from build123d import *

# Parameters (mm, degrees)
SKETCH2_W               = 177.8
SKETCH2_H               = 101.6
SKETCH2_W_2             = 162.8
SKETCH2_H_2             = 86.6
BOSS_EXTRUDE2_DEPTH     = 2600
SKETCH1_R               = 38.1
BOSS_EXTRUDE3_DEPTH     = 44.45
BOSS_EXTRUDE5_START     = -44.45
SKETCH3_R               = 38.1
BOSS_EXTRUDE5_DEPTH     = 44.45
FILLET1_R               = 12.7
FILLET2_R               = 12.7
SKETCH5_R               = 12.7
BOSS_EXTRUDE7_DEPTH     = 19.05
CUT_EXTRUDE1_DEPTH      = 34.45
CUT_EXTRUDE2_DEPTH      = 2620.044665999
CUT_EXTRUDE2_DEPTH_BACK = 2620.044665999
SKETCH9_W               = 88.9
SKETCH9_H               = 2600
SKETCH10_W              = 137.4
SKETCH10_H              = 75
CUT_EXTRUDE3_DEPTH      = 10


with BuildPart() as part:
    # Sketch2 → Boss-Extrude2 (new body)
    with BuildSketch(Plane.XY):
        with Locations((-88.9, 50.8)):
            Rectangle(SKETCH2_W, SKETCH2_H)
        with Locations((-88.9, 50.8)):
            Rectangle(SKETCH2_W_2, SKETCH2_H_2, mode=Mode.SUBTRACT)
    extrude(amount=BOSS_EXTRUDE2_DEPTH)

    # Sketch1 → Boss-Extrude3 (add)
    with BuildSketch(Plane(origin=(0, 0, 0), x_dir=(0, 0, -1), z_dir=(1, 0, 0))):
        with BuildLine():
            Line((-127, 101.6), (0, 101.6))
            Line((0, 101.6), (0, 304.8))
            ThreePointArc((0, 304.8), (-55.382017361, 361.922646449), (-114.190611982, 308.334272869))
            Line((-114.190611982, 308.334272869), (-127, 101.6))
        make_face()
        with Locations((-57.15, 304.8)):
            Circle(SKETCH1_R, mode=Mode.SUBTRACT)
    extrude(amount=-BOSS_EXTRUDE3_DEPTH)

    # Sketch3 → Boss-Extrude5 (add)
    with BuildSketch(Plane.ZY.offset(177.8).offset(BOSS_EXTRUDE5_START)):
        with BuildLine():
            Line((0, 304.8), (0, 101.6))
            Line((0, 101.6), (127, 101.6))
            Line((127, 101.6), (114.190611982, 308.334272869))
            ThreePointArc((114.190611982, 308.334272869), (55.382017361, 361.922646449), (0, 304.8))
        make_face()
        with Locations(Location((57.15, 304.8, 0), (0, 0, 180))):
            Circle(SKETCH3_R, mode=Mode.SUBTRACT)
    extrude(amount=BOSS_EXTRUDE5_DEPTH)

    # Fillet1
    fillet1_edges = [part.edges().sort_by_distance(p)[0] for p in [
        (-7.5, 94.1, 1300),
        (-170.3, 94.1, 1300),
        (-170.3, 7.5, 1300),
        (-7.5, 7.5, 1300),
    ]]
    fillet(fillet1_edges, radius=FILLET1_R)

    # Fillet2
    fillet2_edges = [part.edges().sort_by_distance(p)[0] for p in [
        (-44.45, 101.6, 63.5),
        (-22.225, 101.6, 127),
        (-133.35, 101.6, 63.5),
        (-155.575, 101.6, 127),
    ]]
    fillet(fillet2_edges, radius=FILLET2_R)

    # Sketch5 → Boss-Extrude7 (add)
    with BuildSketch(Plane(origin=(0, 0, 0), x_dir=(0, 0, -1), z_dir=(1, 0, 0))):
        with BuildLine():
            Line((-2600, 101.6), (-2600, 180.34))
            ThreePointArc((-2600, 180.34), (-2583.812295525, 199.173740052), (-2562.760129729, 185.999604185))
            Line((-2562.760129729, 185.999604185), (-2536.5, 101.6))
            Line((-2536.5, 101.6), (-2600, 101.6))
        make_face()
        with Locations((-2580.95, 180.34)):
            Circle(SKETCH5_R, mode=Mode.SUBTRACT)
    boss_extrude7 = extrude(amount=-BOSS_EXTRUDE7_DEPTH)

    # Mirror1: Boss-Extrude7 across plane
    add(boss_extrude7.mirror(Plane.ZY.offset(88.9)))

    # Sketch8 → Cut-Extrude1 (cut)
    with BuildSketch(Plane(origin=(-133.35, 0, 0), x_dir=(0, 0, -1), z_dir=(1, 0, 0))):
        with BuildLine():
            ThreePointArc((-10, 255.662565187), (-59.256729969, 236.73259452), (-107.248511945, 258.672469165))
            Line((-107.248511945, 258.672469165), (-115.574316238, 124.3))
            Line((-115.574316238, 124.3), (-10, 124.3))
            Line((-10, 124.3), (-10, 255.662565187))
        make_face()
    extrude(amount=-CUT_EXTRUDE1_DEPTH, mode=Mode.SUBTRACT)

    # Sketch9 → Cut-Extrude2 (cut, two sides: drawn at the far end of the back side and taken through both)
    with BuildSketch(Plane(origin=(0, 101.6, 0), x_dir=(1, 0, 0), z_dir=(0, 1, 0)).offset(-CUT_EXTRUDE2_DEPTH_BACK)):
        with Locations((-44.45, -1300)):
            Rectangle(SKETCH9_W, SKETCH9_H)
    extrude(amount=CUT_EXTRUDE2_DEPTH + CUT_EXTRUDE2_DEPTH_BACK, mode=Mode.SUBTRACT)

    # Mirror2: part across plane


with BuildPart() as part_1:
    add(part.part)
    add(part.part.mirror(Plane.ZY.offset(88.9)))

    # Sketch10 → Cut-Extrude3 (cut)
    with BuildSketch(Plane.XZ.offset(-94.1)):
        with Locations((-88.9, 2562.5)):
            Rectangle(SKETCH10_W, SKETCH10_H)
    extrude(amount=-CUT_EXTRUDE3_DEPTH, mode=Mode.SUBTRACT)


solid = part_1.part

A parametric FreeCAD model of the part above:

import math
import FreeCAD as App
import Part
import Sketcher
Q = App.Units.Quantity


def edges_at(feature, points):
    """Names of the edges that pass closest to the given points."""
    edges = feature.Shape.Edges
    near = lambda p: min(range(len(edges)), key=lambda i: edges[i].distToShape(Part.Vertex(*p))[0])
    return sorted({f"Edge{near(p) + 1}" for p in points})


def add_polygon(sketch, points):
    """Adds a closed chain of lines whose ends are joined by coincident constraints."""
    first, n = sketch.GeometryCount, len(points)
    for a, b in zip(points, points[1:] + points[:1]):
        sketch.addGeometry(Part.LineSegment(App.Vector(*a, 0), App.Vector(*b, 0)), False)
    for i in range(n):
        sketch.addConstraint(Sketcher.Constraint("Coincident", first + i, 2, first + (i + 1) % n, 1))

doc = App.newDocument("Part")
body = doc.addObject("PartDesign::Body", "Body")

# Sketch on XY plane
sketch1 = body.newObject("Sketcher::SketchObject", "Sketch")
sketch1.AttachmentSupport = (doc.getObject("XY_Plane"), [""])
sketch1.MapMode = "FlatFace"
add_polygon(sketch1, [(-178, 102), (-178, 0), (0, 0), (0, 102)])  # lines 0-3
add_polygon(sketch1, [(-8, 8), (-170, 8), (-170, 94), (-8, 94)])  # lines 4-7
sketch1.addConstraint([
    Sketcher.Constraint("Vertical", 0),
    Sketcher.Constraint("Horizontal", 1),
    Sketcher.Constraint("Vertical", 2),
    Sketcher.Constraint("Horizontal", 3),
    Sketcher.Constraint("Horizontal", 4),
    Sketcher.Constraint("Vertical", 5),
    Sketcher.Constraint("Horizontal", 6),
    Sketcher.Constraint("Vertical", 7),
    Sketcher.Constraint("Coincident", 1, 2, -1, 1),
    Sketcher.Constraint("DistanceX", 1, 1, 1, 2, Q("7 in")),
    Sketcher.Constraint("DistanceY", 0, 2, 0, 1, Q("4 in")),
    Sketcher.Constraint("DistanceX", 4, 2, 4, 1, Q("162.8 mm")),
    Sketcher.Constraint("DistanceY", 5, 1, 5, 2, Q("86.6 mm")),
    Sketcher.Constraint("DistanceX", 4, 2, -1, 1, Q("170.3 mm")),
    Sketcher.Constraint("DistanceY", -1, 1, 4, 2, Q("7.5 mm")),
])
pad1 = body.newObject("PartDesign::Pad", "Pad")
pad1.Profile = sketch1
pad1.Length = 2600

# Sketch on YZ plane
sketch2 = body.newObject("Sketcher::SketchObject", "Sketch001")
sketch2.AttachmentSupport = (doc.getObject("YZ_Plane"), [""])
sketch2.MapMode = "FlatFace"
sketch2.addGeometry([
    Part.LineSegment(App.Vector(102, 127, 0), App.Vector(102, 0, 0)),  # 0
    Part.LineSegment(App.Vector(102, 0, 0), App.Vector(305, 0, 0)),  # 1
    Part.ArcOfCircle(Part.Circle(App.Vector(305, 57, 0), App.Vector(0, 0, 1), 57), math.radians(-90), math.radians(86)),  # 2
    Part.LineSegment(App.Vector(308, 114, 0), App.Vector(102, 127, 0)),  # 3
    Part.Circle(App.Vector(305, 57, 0), App.Vector(0, 0, 1), 38),  # 4
], False)
sketch2.addConstraint([
    Sketcher.Constraint("Coincident", 0, 2, 1, 1),
    Sketcher.Constraint("Tangent", 1, 2, 2, 1),
    Sketcher.Constraint("Tangent", 2, 2, 3, 1),
    Sketcher.Constraint("Coincident", 3, 2, 0, 1),
    Sketcher.Constraint("Vertical", 0),
    Sketcher.Constraint("Horizontal", 1),
    Sketcher.Constraint("Coincident", 4, 3, 2, 3),
    Sketcher.Constraint("PointOnObject", 0, 2, -1),
    Sketcher.Constraint("Diameter", 4, Q("3 in")),
    Sketcher.Constraint("DistanceX", 1, 1, 1, 2, Q("8 in")),
    Sketcher.Constraint("DistanceY", 0, 2, 0, 1, Q("5 in")),
    Sketcher.Constraint("Radius", 2, Q("2.25 in")),
    Sketcher.Constraint("DistanceX", -1, 1, 2, 3, Q("12 in")),
])
pad2 = body.newObject("PartDesign::Pad", "Pad001")
pad2.Profile = sketch2
pad2.Length = Q("1.75 in")
pad2.Reversed = True

# Sketch on YZ plane
sketch3 = body.newObject("Sketcher::SketchObject", "Sketch002")
sketch3.AttachmentSupport = (doc.getObject("YZ_Plane"), [""])
sketch3.MapMode = "FlatFace"
sketch3.AttachmentOffset = App.Placement(App.Vector(0, 0, -5.25 * 25.4), App.Rotation())
sketch3.addGeometry([
    Part.LineSegment(App.Vector(305, 0, 0), App.Vector(102, 0, 0)),  # 0
    Part.LineSegment(App.Vector(102, 0, 0), App.Vector(102, 127, 0)),  # 1
    Part.LineSegment(App.Vector(102, 127, 0), App.Vector(308, 114, 0)),  # 2
    Part.ArcOfCircle(Part.Circle(App.Vector(305, 57, 0), App.Vector(0, 0, 1), 57), math.radians(-90), math.radians(86)),  # 3
    Part.Circle(App.Vector(305, 57, 0), App.Vector(0, 0, 1), 38),  # 4
], False)
sketch3.addConstraint([
    Sketcher.Constraint("Coincident", 0, 2, 1, 1),
    Sketcher.Constraint("Coincident", 1, 2, 2, 1),
    Sketcher.Constraint("Tangent", 2, 2, 3, 2),
    Sketcher.Constraint("Tangent", 3, 1, 0, 1),
    Sketcher.Constraint("Horizontal", 0),
    Sketcher.Constraint("Vertical", 1),
    Sketcher.Constraint("Coincident", 4, 3, 3, 3),
    Sketcher.Constraint("PointOnObject", 0, 2, -1),
    Sketcher.Constraint("Diameter", 4, Q("3 in")),
    Sketcher.Constraint("DistanceX", 0, 2, 0, 1, Q("8 in")),
    Sketcher.Constraint("DistanceY", 1, 1, 1, 2, Q("5 in")),
    Sketcher.Constraint("Radius", 3, Q("2.25 in")),
    Sketcher.Constraint("DistanceX", -1, 1, 3, 3, Q("12 in")),
])
pad3 = body.newObject("PartDesign::Pad", "Pad002")
pad3.Profile = sketch3
pad3.Length = Q("1.75 in")
pad3.Reversed = True
doc.recompute()

fillet = body.newObject("PartDesign::Fillet", "Fillet")
fillet.Base = (pad3, edges_at(pad3, [
    (-7.5, 94.1, 1300),
    (-170.3, 94.1, 1300),
    (-170.3, 7.5, 1300),
    (-7.5, 7.5, 1300),
]))
fillet.Radius = Q("0.5 in")
doc.recompute()

fillet2 = body.newObject("PartDesign::Fillet", "Fillet001")
fillet2.Base = (fillet, edges_at(fillet, [
    (-44.45, 101.6, 63.5),
    (-22.225, 101.6, 127),
    (-133.35, 101.6, 63.5),
    (-155.575, 101.6, 127),
]))
fillet2.Radius = Q("0.5 in")

# Sketch on YZ plane
sketch4 = body.newObject("Sketcher::SketchObject", "Sketch003")
sketch4.AttachmentSupport = (doc.getObject("YZ_Plane"), [""])
sketch4.MapMode = "FlatFace"
sketch4.addGeometry([
    Part.LineSegment(App.Vector(180, 2600, 0), App.Vector(102, 2600, 0)),  # 0
    Part.LineSegment(App.Vector(102, 2600, 0), App.Vector(102, 2536, 0)),  # 1
    Part.LineSegment(App.Vector(102, 2536, 0), App.Vector(186, 2563, 0)),  # 2
    Part.ArcOfCircle(Part.Circle(App.Vector(180, 2581, 0), App.Vector(0, 0, 1), 19), math.radians(-73), math.radians(90)),  # 3
    Part.Circle(App.Vector(180, 2581, 0), App.Vector(0, 0, 1), 13),  # 4
], False)
sketch4.addConstraint([
    Sketcher.Constraint("Coincident", 0, 2, 1, 1),
    Sketcher.Constraint("Coincident", 1, 2, 2, 1),
    Sketcher.Constraint("Tangent", 2, 2, 3, 1),
    Sketcher.Constraint("Tangent", 3, 2, 0, 1),
    Sketcher.Constraint("Horizontal", 0),
    Sketcher.Constraint("Vertical", 1),
    Sketcher.Constraint("Coincident", 4, 3, 3, 3),
    Sketcher.Constraint("Diameter", 4, Q("1 in")),
    Sketcher.Constraint("Radius", 3, Q("0.75 in")),
    Sketcher.Constraint("DistanceX", 0, 2, 0, 1, Q("3.1 in")),
    Sketcher.Constraint("DistanceY", 1, 2, 1, 1, Q("2.5 in")),
    Sketcher.Constraint("DistanceX", -1, 1, 0, 2, Q("4 in")),
    Sketcher.Constraint("DistanceY", -1, 1, 3, 3, Q("2580.95 mm")),
])
pad4 = body.newObject("PartDesign::Pad", "Pad003")
pad4.Profile = sketch4
pad4.Length = Q("0.75 in")
pad4.Reversed = True
doc.recompute()

datumplane = body.newObject("PartDesign::Plane", "DatumPlane")
datumplane.AttachmentSupport = (doc.getObject("YZ_Plane"), [""])
datumplane.MapMode = "FlatFace"
datumplane.AttachmentOffset = App.Placement(App.Vector(0, 0, -3.5 * 25.4), App.Rotation())
mirrored = body.newObject("PartDesign::Mirrored", "Mirrored")
mirrored.Originals = [pad4]
mirrored.MirrorPlane = (datumplane, [""])
body.Tip = mirrored

# Sketch on YZ plane
sketch5 = body.newObject("Sketcher::SketchObject", "Sketch004")
sketch5.AttachmentSupport = (doc.getObject("YZ_Plane"), [""])
sketch5.MapMode = "FlatFace"
sketch5.AttachmentOffset = App.Placement(App.Vector(0, 0, -5.25 * 25.4), App.Rotation())
sketch5.addGeometry([
    Part.ArcOfCircle(Part.Circle(App.Vector(304.8, 57.15, 0), App.Vector(0, 0, 1), 68.1), math.radians(132.636903), math.radians(223.817546)),
    Part.LineSegment(App.Vector(258.672469, 107.248512, 0), App.Vector(124.3, 115.574316, 0)),
    Part.LineSegment(App.Vector(124.3, 115.574316, 0), App.Vector(124.3, 10, 0)),
    Part.LineSegment(App.Vector(124.3, 10, 0), App.Vector(255.662565, 10, 0)),
], False)
sketch5.addConstraint([
    Sketcher.Constraint("Coincident", 0, 1, 1, 1),
    Sketcher.Constraint("Coincident", 1, 2, 2, 1),
    Sketcher.Constraint("Coincident", 2, 2, 3, 1),
    Sketcher.Constraint("Coincident", 3, 2, 0, 2),
    Sketcher.Constraint("Vertical", 2),
    Sketcher.Constraint("Horizontal", 3),
    Sketcher.Constraint("DistanceX", -1, 1, 0, 3, Q("12 in")),
    Sketcher.Constraint("DistanceY", -1, 1, 0, 3, Q("2.25 in")),
    Sketcher.Constraint("Radius", 0, Q("68.1 mm")),
    Sketcher.Constraint("Distance", 1, Q("5.3003999 in")),
    Sketcher.Constraint("DistanceX", 3, 2, 0, 1, Q("0.1185002 in")),
    Sketcher.Constraint("DistanceX", -1, 1, 1, 2, Q("124.3 mm")),
    Sketcher.Constraint("DistanceY", -1, 1, 2, 2, Q("10 mm")),
])
pocket1 = body.newObject("PartDesign::Pocket", "Pocket")
pocket1.Profile = sketch5
pocket1.Length = 34.45

# Sketch on XZ plane
sketch6 = body.newObject("Sketcher::SketchObject", "Sketch005")
sketch6.AttachmentSupport = (doc.getObject("XZ_Plane"), [""])
sketch6.MapMode = "FlatFace"
sketch6.AttachmentOffset = App.Placement(App.Vector(0, 0, -4 * 25.4), App.Rotation())
add_polygon(sketch6, [(-89, 0), (-89, 2600), (0, 2600), (0, 0)])  # lines 0-3
sketch6.addConstraint([
    Sketcher.Constraint("Vertical", 0),
    Sketcher.Constraint("Horizontal", 1),
    Sketcher.Constraint("Vertical", 2),
    Sketcher.Constraint("Horizontal", 3),
    Sketcher.Constraint("Coincident", 2, 2, -1, 1),
    Sketcher.Constraint("DistanceX", 1, 1, 1, 2, Q("3.5 in")),
    Sketcher.Constraint("DistanceY", 0, 1, 0, 2, Q("2600 mm")),
])
pocket2 = body.newObject("PartDesign::Pocket", "Pocket001")
pocket2.Profile = sketch6
pocket2.Type = "ThroughAll"
pocket2.Midplane = True
body2 = doc.addObject("PartDesign::Body", "Body001")
doc.recompute()

body2.BaseFeature = body
doc.recompute()

mirroring = doc.addObject("Part::Mirroring", "Mirroring")
mirroring.Source = body
mirroring.Base = App.Vector(-88.9, 0, 0)
mirroring.Normal = App.Vector(-1, 0, 0)
body3 = doc.addObject("PartDesign::Body", "Body002")
body3.BaseFeature = mirroring
boolean = body2.newObject("PartDesign::Boolean", "Boolean")
boolean.Type = "Fuse"
boolean.addObjects([body3])
doc.recompute()

# Sketch on XZ plane
sketch7 = body2.newObject("Sketcher::SketchObject", "Sketch006")
sketch7.AttachmentSupport = (doc.getObject("XZ_Plane001"), [""])
sketch7.MapMode = "FlatFace"
sketch7.AttachmentOffset = App.Placement(App.Vector(0, 0, -94.1), App.Rotation())
add_polygon(sketch7, [(-158, 2600), (-158, 2525), (-20, 2525), (-20, 2600)])  # lines 0-3
sketch7.addConstraint([
    Sketcher.Constraint("Vertical", 0),
    Sketcher.Constraint("Horizontal", 1),
    Sketcher.Constraint("Vertical", 2),
    Sketcher.Constraint("Horizontal", 3),
    Sketcher.Constraint("DistanceX", 1, 1, 1, 2, Q("137.4 mm")),
    Sketcher.Constraint("DistanceY", 0, 2, 0, 1, Q("75 mm")),
    Sketcher.Constraint("DistanceX", 0, 2, -1, 1, Q("157.6 mm")),
    Sketcher.Constraint("DistanceY", -1, 1, 0, 2, Q("2525 mm")),
])
pocket3 = body2.newObject("PartDesign::Pocket", "Pocket002")
pocket3.Profile = sketch7
pocket3.Length = 10
mirroring.Visibility = False

doc.recompute()
